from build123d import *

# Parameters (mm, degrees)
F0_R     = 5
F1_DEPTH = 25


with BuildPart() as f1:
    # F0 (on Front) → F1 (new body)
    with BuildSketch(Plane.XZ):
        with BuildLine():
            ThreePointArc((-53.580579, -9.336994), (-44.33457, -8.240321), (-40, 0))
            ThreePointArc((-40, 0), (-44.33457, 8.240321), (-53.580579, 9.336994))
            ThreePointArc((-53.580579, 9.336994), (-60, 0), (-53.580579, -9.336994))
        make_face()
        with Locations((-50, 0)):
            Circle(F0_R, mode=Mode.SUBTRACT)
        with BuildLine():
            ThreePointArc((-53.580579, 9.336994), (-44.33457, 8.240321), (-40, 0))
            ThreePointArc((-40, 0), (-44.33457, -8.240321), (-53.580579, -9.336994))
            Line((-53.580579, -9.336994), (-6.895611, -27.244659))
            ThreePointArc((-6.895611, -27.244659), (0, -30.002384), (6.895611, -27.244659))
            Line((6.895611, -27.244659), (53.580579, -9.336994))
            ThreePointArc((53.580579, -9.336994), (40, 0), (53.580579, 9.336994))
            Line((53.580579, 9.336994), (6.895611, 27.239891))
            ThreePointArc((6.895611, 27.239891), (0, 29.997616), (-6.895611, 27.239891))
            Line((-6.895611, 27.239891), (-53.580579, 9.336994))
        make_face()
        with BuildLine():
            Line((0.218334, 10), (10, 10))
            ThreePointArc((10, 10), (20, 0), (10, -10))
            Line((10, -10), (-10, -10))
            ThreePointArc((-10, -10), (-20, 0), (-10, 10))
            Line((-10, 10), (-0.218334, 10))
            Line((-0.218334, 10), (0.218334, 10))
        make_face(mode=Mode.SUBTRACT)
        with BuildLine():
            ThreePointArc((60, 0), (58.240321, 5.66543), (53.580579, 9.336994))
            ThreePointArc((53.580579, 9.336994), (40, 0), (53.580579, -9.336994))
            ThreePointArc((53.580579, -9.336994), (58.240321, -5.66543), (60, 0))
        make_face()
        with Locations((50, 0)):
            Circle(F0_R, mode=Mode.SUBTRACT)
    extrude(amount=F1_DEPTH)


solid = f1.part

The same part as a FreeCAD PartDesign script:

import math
import FreeCAD as App
import Part
import Sketcher
from FreeCAD import Vector
Q = App.Units.Quantity

doc = App.newDocument("Part")
params = doc.addObject("Spreadsheet::Sheet", "Params")
for row, (alias, value) in enumerate([
    ("sketch1_diameter", "10 mm"),
    ("sketch1_radius", "10 mm"),
    ("sketch1_width", "20 mm"),
    ("sketch1_length", "50 mm"),
    ("pad1_length", "25 mm"),
], start=1):
    params.set(f"A{row}", alias)
    params.set(f"B{row}", "=" + value)
    params.setAlias(f"B{row}", alias)

body = doc.addObject("PartDesign::Body", "Body")

# Sketch on XZ plane
sketch1 = body.newObject("Sketcher::SketchObject", "Sketch")
sketch1.AttachmentSupport = (doc.getObject("XZ_Plane"), [""])
sketch1.MapMode = "FlatFace"
sketch1.addGeometry([
    Part.ArcOfCircle(Part.Circle(Vector(-50, 0, 0), Vector(0, 0, 1), 10), math.radians(110.980974), math.radians(249.019026)),  # 0
    Part.LineSegment(Vector(-53.580579, -9.336994, 0), Vector(-6.895611, -27.244659, 0)),  # 1
    Part.ArcOfCircle(Part.Circle(Vector(0, -20.002384, 0), Vector(0, 0, 1), 10), math.radians(-133.595378), math.radians(-46.404622)),  # 2
    Part.LineSegment(Vector(6.895611, -27.244659, 0), Vector(53.580579, -9.336994, 0)),  # 3
    Part.ArcOfCircle(Part.Circle(Vector(49.999997, 0.000002, 0), Vector(0, 0, 1), 10.000003), math.radians(-69.019014), math.radians(-0.000012)),  # 4
    Part.ArcOfCircle(Part.Circle(Vector(49.999997, -0.000002, 0), Vector(0, 0, 1), 10.000003), math.radians(0.000012), math.radians(69.019014)),  # 5
    Part.LineSegment(Vector(53.580579, 9.336994, 0), Vector(6.895611, 27.239891, 0)),  # 6
    Part.ArcOfCircle(Part.Circle(Vector(0, 19.997616, 0), Vector(0, 0, 1), 10), math.radians(46.404622), math.radians(133.595378)),  # 7
    Part.LineSegment(Vector(-6.895611, 27.239891, 0), Vector(-53.580579, 9.336994, 0)),  # 8
    Part.Circle(Vector(-50, 0, 0), Vector(0, 0, 1), 5),  # 9
    Part.LineSegment(Vector(-10, 10, 0), Vector(10, 10, 0)),  # 10
    Part.ArcOfCircle(Part.Circle(Vector(10, 0, 0), Vector(0, 0, 1), 10), math.radians(-90), math.radians(90)),  # 11
    Part.LineSegment(Vector(10, -10, 0), Vector(-10, -10, 0)),  # 12
    Part.ArcOfCircle(Part.Circle(Vector(-10, 0, 0), Vector(0, 0, 1), 10), math.radians(90), math.radians(270)),  # 13
    Part.Circle(Vector(50, 0, 0), Vector(0, 0, 1), 5),  # 14
], False)
sketch1.addConstraint([
    Sketcher.Constraint("Coincident", 0, 2, 1, 1),
    Sketcher.Constraint("Coincident", 1, 2, 2, 1),
    Sketcher.Constraint("Coincident", 2, 2, 3, 1),
    Sketcher.Constraint("Coincident", 3, 2, 4, 1),
    Sketcher.Constraint("Tangent", 4, 2, 5, 1),
    Sketcher.Constraint("Tangent", 5, 2, 6, 1),
    Sketcher.Constraint("Coincident", 6, 2, 7, 1),
    Sketcher.Constraint("Coincident", 7, 2, 8, 1),
    Sketcher.Constraint("Tangent", 8, 2, 0, 1),
    Sketcher.Constraint("Tangent", 10, 2, 11, 2),
    Sketcher.Constraint("Tangent", 11, 1, 12, 1),
    Sketcher.Constraint("Tangent", 12, 2, 13, 2),
    Sketcher.Constraint("Tangent", 13, 1, 10, 1),
    Sketcher.Constraint("Horizontal", 10),
    Sketcher.Constraint("Horizontal", 12),
    Sketcher.Constraint("Coincident", 9, 3, 0, 3),
    Sketcher.Constraint("Coincident", 14, 3, 4, 3),
    Sketcher.Constraint("Equal", 0, 2),
    Sketcher.Constraint("Equal", 4, 5),
    Sketcher.Constraint("Equal", 2, 7),
    Sketcher.Constraint("Equal", 7, 11),
    Sketcher.Constraint("Equal", 9, 14),
    Sketcher.Constraint("Symmetric", 0, 3, 4, 3, -1, 1),
    Sketcher.Constraint("Symmetric", 11, 3, 13, 3, -1, 1),
    Sketcher.Constraint("Symmetric", 0, 2, 5, 2, -1, 1),
    Sketcher.Constraint("Symmetric", 1, 2, 2, 2, -2),
    Sketcher.Constraint("Symmetric", 0, 2, 3, 2, -2),
    Sketcher.Constraint("Symmetric", 6, 2, 7, 2, -2),
    Sketcher.Constraint("PointOnObject", 4, 2, -1),
    Sketcher.Constraint("Vertical", 2, 2, 6, 2),
    Sketcher.Constraint("Diameter", 9, Q("10 mm")),
    Sketcher.Constraint("Radius", 0, Q("10 mm")),
    Sketcher.Constraint("DistanceX", 10, 1, 10, 2, Q("20 mm")),
    Sketcher.Constraint("Distance", 6, Q("50 mm")),
    Sketcher.Constraint("DistanceX", 0, 3, -1, 1, Q("50 mm")),
    Sketcher.Constraint("DistanceY", 2, 3, 7, 3, Q("40.000001 mm")),
    Sketcher.Constraint("DistanceX", 0, 2, -1, 1, Q("53.580579 mm")),
])
sketch1.setExpression("Constraints[30]", "Params.sketch1_diameter")
sketch1.setExpression("Constraints[31]", "Params.sketch1_radius")
sketch1.setExpression("Constraints[32]", "Params.sketch1_width")
sketch1.setExpression("Constraints[33]", "Params.sketch1_length")
pad1 = body.newObject("PartDesign::Pad", "Pad")
pad1.Profile = sketch1
pad1.setExpression("Length", "Params.pad1_length")

doc.recompute()
